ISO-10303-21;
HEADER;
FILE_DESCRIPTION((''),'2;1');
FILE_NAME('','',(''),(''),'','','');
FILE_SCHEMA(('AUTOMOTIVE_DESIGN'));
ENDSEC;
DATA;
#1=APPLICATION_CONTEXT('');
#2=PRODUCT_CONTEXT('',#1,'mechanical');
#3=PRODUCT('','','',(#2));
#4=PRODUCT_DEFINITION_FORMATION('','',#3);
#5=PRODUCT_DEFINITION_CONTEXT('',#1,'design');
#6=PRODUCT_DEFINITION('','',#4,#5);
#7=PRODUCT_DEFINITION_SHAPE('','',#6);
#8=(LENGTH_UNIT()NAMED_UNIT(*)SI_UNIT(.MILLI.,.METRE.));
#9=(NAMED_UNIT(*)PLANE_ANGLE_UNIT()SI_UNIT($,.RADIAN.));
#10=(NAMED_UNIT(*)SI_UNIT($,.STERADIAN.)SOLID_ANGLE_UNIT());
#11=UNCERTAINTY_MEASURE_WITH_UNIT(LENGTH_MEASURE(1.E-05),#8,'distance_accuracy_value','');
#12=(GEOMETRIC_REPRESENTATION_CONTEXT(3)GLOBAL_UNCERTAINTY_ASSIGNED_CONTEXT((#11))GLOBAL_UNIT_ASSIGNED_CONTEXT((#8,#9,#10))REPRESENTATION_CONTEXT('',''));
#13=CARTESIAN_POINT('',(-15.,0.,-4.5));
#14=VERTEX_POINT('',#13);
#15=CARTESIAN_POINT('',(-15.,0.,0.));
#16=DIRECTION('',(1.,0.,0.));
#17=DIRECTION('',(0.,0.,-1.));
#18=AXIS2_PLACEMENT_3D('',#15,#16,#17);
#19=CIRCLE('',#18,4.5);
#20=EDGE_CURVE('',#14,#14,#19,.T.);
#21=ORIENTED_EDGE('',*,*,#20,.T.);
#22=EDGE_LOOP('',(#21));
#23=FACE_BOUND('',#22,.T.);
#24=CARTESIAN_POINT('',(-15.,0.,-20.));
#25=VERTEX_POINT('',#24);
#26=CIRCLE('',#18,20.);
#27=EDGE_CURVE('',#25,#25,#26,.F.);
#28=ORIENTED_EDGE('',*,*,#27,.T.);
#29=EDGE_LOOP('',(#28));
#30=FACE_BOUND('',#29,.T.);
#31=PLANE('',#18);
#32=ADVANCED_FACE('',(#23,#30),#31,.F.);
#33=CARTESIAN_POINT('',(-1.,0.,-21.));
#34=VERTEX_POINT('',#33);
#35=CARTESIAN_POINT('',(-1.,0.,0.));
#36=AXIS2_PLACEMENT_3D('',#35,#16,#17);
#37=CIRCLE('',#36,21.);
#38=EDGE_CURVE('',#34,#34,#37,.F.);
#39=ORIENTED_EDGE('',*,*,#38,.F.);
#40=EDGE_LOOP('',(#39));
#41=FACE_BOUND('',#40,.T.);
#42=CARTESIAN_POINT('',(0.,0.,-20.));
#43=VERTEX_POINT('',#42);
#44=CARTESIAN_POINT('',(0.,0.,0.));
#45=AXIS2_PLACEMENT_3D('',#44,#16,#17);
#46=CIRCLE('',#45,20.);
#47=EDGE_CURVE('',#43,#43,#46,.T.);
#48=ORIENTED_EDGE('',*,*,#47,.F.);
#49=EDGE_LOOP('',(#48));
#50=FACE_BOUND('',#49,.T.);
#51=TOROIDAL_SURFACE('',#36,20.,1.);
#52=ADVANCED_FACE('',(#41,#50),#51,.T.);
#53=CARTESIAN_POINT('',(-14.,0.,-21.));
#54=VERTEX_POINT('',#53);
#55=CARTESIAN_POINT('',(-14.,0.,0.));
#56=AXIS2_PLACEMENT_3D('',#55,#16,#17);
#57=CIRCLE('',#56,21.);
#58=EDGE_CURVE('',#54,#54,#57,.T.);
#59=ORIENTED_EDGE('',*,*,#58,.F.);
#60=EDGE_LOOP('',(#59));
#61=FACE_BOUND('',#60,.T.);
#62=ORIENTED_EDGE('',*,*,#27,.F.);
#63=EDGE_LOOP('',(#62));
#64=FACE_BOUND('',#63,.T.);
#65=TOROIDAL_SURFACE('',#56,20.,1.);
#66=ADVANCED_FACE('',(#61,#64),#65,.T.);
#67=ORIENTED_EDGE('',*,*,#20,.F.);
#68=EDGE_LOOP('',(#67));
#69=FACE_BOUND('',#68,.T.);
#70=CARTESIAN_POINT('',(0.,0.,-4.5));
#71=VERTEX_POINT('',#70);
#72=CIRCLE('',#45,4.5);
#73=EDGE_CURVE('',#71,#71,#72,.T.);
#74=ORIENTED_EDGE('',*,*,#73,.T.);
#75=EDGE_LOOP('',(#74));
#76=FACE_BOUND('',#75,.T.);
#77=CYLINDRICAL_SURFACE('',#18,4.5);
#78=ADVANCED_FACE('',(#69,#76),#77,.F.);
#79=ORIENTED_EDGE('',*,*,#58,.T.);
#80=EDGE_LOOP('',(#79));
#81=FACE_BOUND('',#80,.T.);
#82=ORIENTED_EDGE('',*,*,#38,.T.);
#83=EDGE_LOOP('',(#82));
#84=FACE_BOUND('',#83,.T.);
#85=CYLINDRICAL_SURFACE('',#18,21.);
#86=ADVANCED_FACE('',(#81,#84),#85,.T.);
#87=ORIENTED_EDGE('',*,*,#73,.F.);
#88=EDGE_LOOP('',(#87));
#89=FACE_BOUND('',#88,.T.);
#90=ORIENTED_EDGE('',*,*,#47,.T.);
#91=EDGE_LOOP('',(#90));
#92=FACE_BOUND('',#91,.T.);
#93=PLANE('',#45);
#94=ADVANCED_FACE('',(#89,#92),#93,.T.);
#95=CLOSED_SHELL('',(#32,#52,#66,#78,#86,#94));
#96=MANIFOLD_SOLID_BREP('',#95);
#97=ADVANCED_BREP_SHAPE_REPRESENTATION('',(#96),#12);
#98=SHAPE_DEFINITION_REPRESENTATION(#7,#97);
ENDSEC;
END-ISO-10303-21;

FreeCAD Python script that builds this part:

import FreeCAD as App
import Part
import Sketcher


def edges_at(feature, points):
    """Names of the edges that pass closest to the given points."""
    edges = feature.Shape.Edges
    near = lambda p: min(range(len(edges)), key=lambda i: edges[i].distToShape(Part.Vertex(*p))[0])
    return sorted({f"Edge{near(p) + 1}" for p in points})

doc = App.newDocument("Part")
body = doc.addObject("PartDesign::Body", "Body")

sketch1 = body.newObject("Sketcher::SketchObject", "Sketch")
sketch1.AttachmentSupport = (doc.getObject("YZ_Plane"), [""])
sketch1.MapMode = "FlatFace"
sketch1.addGeometry(Part.Circle(App.Vector(0, 0, 0), App.Vector(0, 0, 1), 21), False)
sketch1.addConstraint(Sketcher.Constraint("Coincident", 0, 3, -1, 1))
sketch1.addConstraint(Sketcher.Constraint("Diameter", 0, 42.0))
pad1 = body.newObject("PartDesign::Pad", "Pad")
pad1.Profile = sketch1
pad1.Length = 15
pad1.Reversed = True
doc.recompute()

fillet = body.newObject("PartDesign::Fillet", "Fillet")
fillet.Base = (pad1, edges_at(pad1, [(0, 0, 21), (-15, 0, 21)]))
fillet.Radius = 1

sketch2 = body.newObject("Sketcher::SketchObject", "Sketch001")
sketch2.AttachmentSupport = (doc.getObject("YZ_Plane"), [""])
sketch2.MapMode = "FlatFace"
sketch2.addGeometry(Part.Circle(App.Vector(0, 0, 0), App.Vector(0, 0, 1), 4.5), False)
sketch2.addConstraint(Sketcher.Constraint("Coincident", 0, 3, -1, 1))
sketch2.addConstraint(Sketcher.Constraint("Diameter", 0, 9.0))
pocket1 = body.newObject("PartDesign::Pocket", "Pocket")
pocket1.Profile = sketch2
pocket1.Length = 15

doc.recompute()
